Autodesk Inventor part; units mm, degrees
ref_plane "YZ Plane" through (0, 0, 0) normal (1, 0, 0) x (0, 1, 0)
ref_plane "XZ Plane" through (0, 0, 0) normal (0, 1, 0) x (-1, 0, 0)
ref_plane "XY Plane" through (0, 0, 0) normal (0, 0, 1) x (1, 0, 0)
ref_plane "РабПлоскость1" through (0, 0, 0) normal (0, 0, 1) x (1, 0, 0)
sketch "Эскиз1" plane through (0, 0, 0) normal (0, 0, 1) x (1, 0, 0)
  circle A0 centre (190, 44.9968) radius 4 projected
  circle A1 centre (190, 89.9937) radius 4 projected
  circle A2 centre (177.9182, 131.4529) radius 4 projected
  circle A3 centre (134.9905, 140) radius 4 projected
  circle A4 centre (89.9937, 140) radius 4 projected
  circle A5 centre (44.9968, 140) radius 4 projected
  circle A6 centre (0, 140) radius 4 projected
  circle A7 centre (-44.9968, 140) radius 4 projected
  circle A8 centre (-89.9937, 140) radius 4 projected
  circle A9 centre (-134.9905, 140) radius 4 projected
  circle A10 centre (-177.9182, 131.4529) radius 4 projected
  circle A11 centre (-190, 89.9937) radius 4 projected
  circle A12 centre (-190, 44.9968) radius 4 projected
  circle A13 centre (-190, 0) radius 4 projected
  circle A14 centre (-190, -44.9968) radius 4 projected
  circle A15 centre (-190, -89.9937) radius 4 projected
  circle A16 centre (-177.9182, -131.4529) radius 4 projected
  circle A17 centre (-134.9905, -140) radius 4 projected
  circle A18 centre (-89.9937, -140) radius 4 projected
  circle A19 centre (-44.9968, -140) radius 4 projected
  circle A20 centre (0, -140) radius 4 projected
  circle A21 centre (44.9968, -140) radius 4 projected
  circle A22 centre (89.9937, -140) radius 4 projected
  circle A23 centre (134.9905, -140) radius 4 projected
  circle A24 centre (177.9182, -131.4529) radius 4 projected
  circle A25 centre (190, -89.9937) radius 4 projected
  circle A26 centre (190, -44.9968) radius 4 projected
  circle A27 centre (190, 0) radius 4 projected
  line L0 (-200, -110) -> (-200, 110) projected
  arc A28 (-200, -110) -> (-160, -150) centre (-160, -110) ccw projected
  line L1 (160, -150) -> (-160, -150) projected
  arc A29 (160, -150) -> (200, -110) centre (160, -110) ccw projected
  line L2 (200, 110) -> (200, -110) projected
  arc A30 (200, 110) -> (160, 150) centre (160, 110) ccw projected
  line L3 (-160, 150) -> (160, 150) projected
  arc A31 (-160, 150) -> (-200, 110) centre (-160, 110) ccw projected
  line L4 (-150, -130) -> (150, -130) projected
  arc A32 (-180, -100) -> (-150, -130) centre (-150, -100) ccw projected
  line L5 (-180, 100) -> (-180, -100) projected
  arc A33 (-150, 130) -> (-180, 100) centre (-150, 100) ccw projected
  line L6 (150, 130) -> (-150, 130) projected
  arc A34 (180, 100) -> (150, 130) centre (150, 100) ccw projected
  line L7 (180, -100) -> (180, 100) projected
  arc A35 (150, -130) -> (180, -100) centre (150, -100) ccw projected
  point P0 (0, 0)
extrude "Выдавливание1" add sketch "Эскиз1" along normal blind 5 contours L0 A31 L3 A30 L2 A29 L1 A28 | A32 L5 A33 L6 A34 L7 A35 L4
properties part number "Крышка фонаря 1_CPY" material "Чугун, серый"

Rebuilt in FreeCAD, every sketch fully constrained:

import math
import FreeCAD as App
import Part
import Sketcher
Q = App.Units.Quantity

doc = App.newDocument("Part")
body = doc.addObject("PartDesign::Body", "Body")

# Sketch on XY plane
sketch1 = doc.addObject("Sketcher::SketchObject", "Sketch")
body.addObject(sketch1)
sketch1.AttachmentSupport = (doc.XY_Plane, [""])
sketch1.MapMode = "FlatFace"
sketch1.addGeometry([
    Part.LineSegment(App.Vector(-200, 110, 0), App.Vector(-200, -110, 0)),  # 0
    Part.ArcOfCircle(Part.Circle(App.Vector(-160, -110, 0), App.Vector(0, 0, 1), 40), math.radians(180), math.radians(270)),  # 1
    Part.LineSegment(App.Vector(-160, -150, 0), App.Vector(160, -150, 0)),  # 2
    Part.ArcOfCircle(Part.Circle(App.Vector(160, -110, 0), App.Vector(0, 0, 1), 40), math.radians(-90), math.radians(0)),  # 3
    Part.LineSegment(App.Vector(200, -110, 0), App.Vector(200, 110, 0)),  # 4
    Part.ArcOfCircle(Part.Circle(App.Vector(160, 110, 0), App.Vector(0, 0, 1), 40), math.radians(0), math.radians(90)),  # 5
    Part.LineSegment(App.Vector(160, 150, 0), App.Vector(-160, 150, 0)),  # 6
    Part.ArcOfCircle(Part.Circle(App.Vector(-160, 110, 0), App.Vector(0, 0, 1), 40), math.radians(90), math.radians(180)),  # 7
    Part.Circle(App.Vector(-177.9, -131.5, 0), App.Vector(0, 0, 1), 4),  # 8
    Part.Circle(App.Vector(-135, -140, 0), App.Vector(0, 0, 1), 4),  # 9
    Part.Circle(App.Vector(-190, -90, 0), App.Vector(0, 0, 1), 4),  # 10
    Part.Circle(App.Vector(-90, -140, 0), App.Vector(0, 0, 1), 4),  # 11
    Part.Circle(App.Vector(-45, -140, 0), App.Vector(0, 0, 1), 4),  # 12
    Part.Circle(App.Vector(-190, -45, 0), App.Vector(0, 0, 1), 4),  # 13
    Part.Circle(App.Vector(0, -140, 0), App.Vector(0, 0, 1), 4),  # 14
    Part.Circle(App.Vector(45, -140, 0), App.Vector(0, 0, 1), 4),  # 15
    Part.Circle(App.Vector(90, -140, 0), App.Vector(0, 0, 1), 4),  # 16
    Part.Circle(App.Vector(135, -140, 0), App.Vector(0, 0, 1), 4),  # 17
    Part.Circle(App.Vector(177.9, -131.5, 0), App.Vector(0, 0, 1), 4),  # 18
    Part.Circle(App.Vector(190, -90, 0), App.Vector(0, 0, 1), 4),  # 19
    Part.Circle(App.Vector(190, -45, 0), App.Vector(0, 0, 1), 4),  # 20
    Part.Circle(App.Vector(-190, 0, 0), App.Vector(0, 0, 1), 4),  # 21
    Part.Circle(App.Vector(-190, 45, 0), App.Vector(0, 0, 1), 4),  # 22
    Part.Circle(App.Vector(-190, 90, 0), App.Vector(0, 0, 1), 4),  # 23
    Part.Circle(App.Vector(-177.9, 131.5, 0), App.Vector(0, 0, 1), 4),  # 24
    Part.Circle(App.Vector(-135, 140, 0), App.Vector(0, 0, 1), 4),  # 25
    Part.Circle(App.Vector(-90, 140, 0), App.Vector(0, 0, 1), 4),  # 26
    Part.Circle(App.Vector(-45, 140, 0), App.Vector(0, 0, 1), 4),  # 27
    Part.Circle(App.Vector(190, 0, 0), App.Vector(0, 0, 1), 4),  # 28
    Part.Circle(App.Vector(190, 45, 0), App.Vector(0, 0, 1), 4),  # 29
    Part.Circle(App.Vector(0, 140, 0), App.Vector(0, 0, 1), 4),  # 30
    Part.Circle(App.Vector(45, 140, 0), App.Vector(0, 0, 1), 4),  # 31
    Part.Circle(App.Vector(90, 140, 0), App.Vector(0, 0, 1), 4),  # 32
    Part.Circle(App.Vector(190, 90, 0), App.Vector(0, 0, 1), 4),  # 33
    Part.Circle(App.Vector(135, 140, 0), App.Vector(0, 0, 1), 4),  # 34
    Part.Circle(App.Vector(177.9, 131.5, 0), App.Vector(0, 0, 1), 4),  # 35
], False)
sketch1.addConstraint([
    Sketcher.Constraint("Tangent", 0, 2, 1, 1),
    Sketcher.Constraint("Tangent", 1, 2, 2, 1),
    Sketcher.Constraint("Tangent", 2, 2, 3, 1),
    Sketcher.Constraint("Tangent", 3, 2, 4, 1),
    Sketcher.Constraint("Tangent", 4, 2, 5, 1),
    Sketcher.Constraint("Tangent", 5, 2, 6, 1),
    Sketcher.Constraint("Tangent", 6, 2, 7, 1),
    Sketcher.Constraint("Tangent", 7, 2, 0, 1),
    Sketcher.Constraint("Vertical", 0),
    Sketcher.Constraint("Horizontal", 2),
    Sketcher.Constraint("Vertical", 4),
    Sketcher.Constraint("Horizontal", 6),
    Sketcher.Constraint("Equal", 1, 3),
    Sketcher.Constraint("Equal", 3, 5),
    Sketcher.Constraint("Equal", 5, 7),
    Sketcher.Constraint("Equal", 8, 9),
    Sketcher.Constraint("Equal", 9, 10),
    Sketcher.Constraint("Equal", 10, 11),
    Sketcher.Constraint("Equal", 11, 12),
    Sketcher.Constraint("Equal", 12, 13),
    Sketcher.Constraint("Equal", 13, 14),
    Sketcher.Constraint("Equal", 14, 15),
    Sketcher.Constraint("Equal", 15, 16),
    Sketcher.Constraint("Equal", 16, 17),
    Sketcher.Constraint("Equal", 17, 18),
    Sketcher.Constraint("Equal", 18, 19),
    Sketcher.Constraint("Equal", 19, 20),
    Sketcher.Constraint("Equal", 20, 21),
    Sketcher.Constraint("Equal", 21, 22),
    Sketcher.Constraint("Equal", 22, 23),
    Sketcher.Constraint("Equal", 23, 24),
    Sketcher.Constraint("Equal", 24, 25),
    Sketcher.Constraint("Equal", 25, 26),
    Sketcher.Constraint("Equal", 26, 27),
    Sketcher.Constraint("Equal", 27, 28),
    Sketcher.Constraint("Equal", 28, 29),
    Sketcher.Constraint("Equal", 29, 30),
    Sketcher.Constraint("Equal", 30, 31),
    Sketcher.Constraint("Equal", 31, 32),
    Sketcher.Constraint("Equal", 32, 33),
    Sketcher.Constraint("Equal", 33, 34),
    Sketcher.Constraint("Equal", 34, 35),
    Sketcher.Constraint("Symmetric", 1, 3, 5, 3, -1, 1),
    Sketcher.Constraint("Symmetric", 20, 3, 22, 3, -1, 1),
    Sketcher.Constraint("Symmetric", 19, 3, 23, 3, -1, 1),
    Sketcher.Constraint("Symmetric", 18, 3, 24, 3, -1, 1),
    Sketcher.Constraint("Symmetric", 17, 3, 25, 3, -1, 1),
    Sketcher.Constraint("Symmetric", 16, 3, 26, 3, -1, 1),
    Sketcher.Constraint("Symmetric", 15, 3, 27, 3, -1, 1),
    Sketcher.Constraint("Symmetric", 21, 3, 28, 3, -1, 1),
    Sketcher.Constraint("Symmetric", 13, 3, 29, 3, -1, 1),
    Sketcher.Constraint("Symmetric", 14, 3, 30, 3, -1, 1),
    Sketcher.Constraint("Symmetric", 12, 3, 31, 3, -1, 1),
    Sketcher.Constraint("Symmetric", 11, 3, 32, 3, -1, 1),
    Sketcher.Constraint("Symmetric", 10, 3, 33, 3, -1, 1),
    Sketcher.Constraint("Symmetric", 9, 3, 34, 3, -1, 1),
    Sketcher.Constraint("Symmetric", 8, 3, 35, 3, -1, 1),
    Sketcher.Constraint("Symmetric", 12, 3, 15, 3, -2),
    Sketcher.Constraint("Symmetric", 11, 3, 16, 3, -2),
    Sketcher.Constraint("Symmetric", 9, 3, 17, 3, -2),
    Sketcher.Constraint("Symmetric", 8, 3, 18, 3, -2),
    Sketcher.Constraint("Symmetric", 10, 3, 19, 3, -2),
    Sketcher.Constraint("Symmetric", 13, 3, 20, 3, -2),
    Sketcher.Constraint("PointOnObject", 14, 3, -2),
    Sketcher.Constraint("PointOnObject", 21, 3, -1),
    Sketcher.Constraint("Horizontal", 9, 3, 11, 3),
    Sketcher.Constraint("Horizontal", 11, 3, 12, 3),
    Sketcher.Constraint("Horizontal", 12, 3, 14, 3),
    Sketcher.Constraint("Vertical", 10, 3, 13, 3),
    Sketcher.Constraint("Vertical", 13, 3, 21, 3),
    Sketcher.Constraint("Diameter", 8, Q("8 mm")),
    Sketcher.Constraint("Radius", 1, Q("40 mm")),
    Sketcher.Constraint("DistanceX", 2, 1, 2, 2, Q("320 mm")),
    Sketcher.Constraint("DistanceY", 0, 2, 0, 1, Q("220 mm")),
    Sketcher.Constraint("DistanceY", 9, 3, -1, 1, Q("140 mm")),
    Sketcher.Constraint("DistanceX", 10, 3, -1, 1, Q("190 mm")),
    Sketcher.Constraint("DistanceY", 8, 3, -1, 1, Q("131.453 mm")),
    Sketcher.Constraint("DistanceX", 11, 3, 12, 3, Q("44.997 mm")),
    Sketcher.Constraint("DistanceY", 10, 3, 13, 3, Q("44.997 mm")),
    Sketcher.Constraint("DistanceY", 8, 3, 13, 3, Q("86.456 mm")),
    Sketcher.Constraint("DistanceX", 8, 3, -1, 1, Q("177.9182 mm")),
    Sketcher.Constraint("DistanceX", 9, 3, -1, 1, Q("134.9905 mm")),
    Sketcher.Constraint("DistanceX", 11, 3, -1, 1, Q("89.9937 mm")),
])
pad1 = doc.addObject("PartDesign::Pad", "Pad")
body.addObject(pad1)
pad1.Profile = sketch1
pad1.Length = 5

doc.recompute()
